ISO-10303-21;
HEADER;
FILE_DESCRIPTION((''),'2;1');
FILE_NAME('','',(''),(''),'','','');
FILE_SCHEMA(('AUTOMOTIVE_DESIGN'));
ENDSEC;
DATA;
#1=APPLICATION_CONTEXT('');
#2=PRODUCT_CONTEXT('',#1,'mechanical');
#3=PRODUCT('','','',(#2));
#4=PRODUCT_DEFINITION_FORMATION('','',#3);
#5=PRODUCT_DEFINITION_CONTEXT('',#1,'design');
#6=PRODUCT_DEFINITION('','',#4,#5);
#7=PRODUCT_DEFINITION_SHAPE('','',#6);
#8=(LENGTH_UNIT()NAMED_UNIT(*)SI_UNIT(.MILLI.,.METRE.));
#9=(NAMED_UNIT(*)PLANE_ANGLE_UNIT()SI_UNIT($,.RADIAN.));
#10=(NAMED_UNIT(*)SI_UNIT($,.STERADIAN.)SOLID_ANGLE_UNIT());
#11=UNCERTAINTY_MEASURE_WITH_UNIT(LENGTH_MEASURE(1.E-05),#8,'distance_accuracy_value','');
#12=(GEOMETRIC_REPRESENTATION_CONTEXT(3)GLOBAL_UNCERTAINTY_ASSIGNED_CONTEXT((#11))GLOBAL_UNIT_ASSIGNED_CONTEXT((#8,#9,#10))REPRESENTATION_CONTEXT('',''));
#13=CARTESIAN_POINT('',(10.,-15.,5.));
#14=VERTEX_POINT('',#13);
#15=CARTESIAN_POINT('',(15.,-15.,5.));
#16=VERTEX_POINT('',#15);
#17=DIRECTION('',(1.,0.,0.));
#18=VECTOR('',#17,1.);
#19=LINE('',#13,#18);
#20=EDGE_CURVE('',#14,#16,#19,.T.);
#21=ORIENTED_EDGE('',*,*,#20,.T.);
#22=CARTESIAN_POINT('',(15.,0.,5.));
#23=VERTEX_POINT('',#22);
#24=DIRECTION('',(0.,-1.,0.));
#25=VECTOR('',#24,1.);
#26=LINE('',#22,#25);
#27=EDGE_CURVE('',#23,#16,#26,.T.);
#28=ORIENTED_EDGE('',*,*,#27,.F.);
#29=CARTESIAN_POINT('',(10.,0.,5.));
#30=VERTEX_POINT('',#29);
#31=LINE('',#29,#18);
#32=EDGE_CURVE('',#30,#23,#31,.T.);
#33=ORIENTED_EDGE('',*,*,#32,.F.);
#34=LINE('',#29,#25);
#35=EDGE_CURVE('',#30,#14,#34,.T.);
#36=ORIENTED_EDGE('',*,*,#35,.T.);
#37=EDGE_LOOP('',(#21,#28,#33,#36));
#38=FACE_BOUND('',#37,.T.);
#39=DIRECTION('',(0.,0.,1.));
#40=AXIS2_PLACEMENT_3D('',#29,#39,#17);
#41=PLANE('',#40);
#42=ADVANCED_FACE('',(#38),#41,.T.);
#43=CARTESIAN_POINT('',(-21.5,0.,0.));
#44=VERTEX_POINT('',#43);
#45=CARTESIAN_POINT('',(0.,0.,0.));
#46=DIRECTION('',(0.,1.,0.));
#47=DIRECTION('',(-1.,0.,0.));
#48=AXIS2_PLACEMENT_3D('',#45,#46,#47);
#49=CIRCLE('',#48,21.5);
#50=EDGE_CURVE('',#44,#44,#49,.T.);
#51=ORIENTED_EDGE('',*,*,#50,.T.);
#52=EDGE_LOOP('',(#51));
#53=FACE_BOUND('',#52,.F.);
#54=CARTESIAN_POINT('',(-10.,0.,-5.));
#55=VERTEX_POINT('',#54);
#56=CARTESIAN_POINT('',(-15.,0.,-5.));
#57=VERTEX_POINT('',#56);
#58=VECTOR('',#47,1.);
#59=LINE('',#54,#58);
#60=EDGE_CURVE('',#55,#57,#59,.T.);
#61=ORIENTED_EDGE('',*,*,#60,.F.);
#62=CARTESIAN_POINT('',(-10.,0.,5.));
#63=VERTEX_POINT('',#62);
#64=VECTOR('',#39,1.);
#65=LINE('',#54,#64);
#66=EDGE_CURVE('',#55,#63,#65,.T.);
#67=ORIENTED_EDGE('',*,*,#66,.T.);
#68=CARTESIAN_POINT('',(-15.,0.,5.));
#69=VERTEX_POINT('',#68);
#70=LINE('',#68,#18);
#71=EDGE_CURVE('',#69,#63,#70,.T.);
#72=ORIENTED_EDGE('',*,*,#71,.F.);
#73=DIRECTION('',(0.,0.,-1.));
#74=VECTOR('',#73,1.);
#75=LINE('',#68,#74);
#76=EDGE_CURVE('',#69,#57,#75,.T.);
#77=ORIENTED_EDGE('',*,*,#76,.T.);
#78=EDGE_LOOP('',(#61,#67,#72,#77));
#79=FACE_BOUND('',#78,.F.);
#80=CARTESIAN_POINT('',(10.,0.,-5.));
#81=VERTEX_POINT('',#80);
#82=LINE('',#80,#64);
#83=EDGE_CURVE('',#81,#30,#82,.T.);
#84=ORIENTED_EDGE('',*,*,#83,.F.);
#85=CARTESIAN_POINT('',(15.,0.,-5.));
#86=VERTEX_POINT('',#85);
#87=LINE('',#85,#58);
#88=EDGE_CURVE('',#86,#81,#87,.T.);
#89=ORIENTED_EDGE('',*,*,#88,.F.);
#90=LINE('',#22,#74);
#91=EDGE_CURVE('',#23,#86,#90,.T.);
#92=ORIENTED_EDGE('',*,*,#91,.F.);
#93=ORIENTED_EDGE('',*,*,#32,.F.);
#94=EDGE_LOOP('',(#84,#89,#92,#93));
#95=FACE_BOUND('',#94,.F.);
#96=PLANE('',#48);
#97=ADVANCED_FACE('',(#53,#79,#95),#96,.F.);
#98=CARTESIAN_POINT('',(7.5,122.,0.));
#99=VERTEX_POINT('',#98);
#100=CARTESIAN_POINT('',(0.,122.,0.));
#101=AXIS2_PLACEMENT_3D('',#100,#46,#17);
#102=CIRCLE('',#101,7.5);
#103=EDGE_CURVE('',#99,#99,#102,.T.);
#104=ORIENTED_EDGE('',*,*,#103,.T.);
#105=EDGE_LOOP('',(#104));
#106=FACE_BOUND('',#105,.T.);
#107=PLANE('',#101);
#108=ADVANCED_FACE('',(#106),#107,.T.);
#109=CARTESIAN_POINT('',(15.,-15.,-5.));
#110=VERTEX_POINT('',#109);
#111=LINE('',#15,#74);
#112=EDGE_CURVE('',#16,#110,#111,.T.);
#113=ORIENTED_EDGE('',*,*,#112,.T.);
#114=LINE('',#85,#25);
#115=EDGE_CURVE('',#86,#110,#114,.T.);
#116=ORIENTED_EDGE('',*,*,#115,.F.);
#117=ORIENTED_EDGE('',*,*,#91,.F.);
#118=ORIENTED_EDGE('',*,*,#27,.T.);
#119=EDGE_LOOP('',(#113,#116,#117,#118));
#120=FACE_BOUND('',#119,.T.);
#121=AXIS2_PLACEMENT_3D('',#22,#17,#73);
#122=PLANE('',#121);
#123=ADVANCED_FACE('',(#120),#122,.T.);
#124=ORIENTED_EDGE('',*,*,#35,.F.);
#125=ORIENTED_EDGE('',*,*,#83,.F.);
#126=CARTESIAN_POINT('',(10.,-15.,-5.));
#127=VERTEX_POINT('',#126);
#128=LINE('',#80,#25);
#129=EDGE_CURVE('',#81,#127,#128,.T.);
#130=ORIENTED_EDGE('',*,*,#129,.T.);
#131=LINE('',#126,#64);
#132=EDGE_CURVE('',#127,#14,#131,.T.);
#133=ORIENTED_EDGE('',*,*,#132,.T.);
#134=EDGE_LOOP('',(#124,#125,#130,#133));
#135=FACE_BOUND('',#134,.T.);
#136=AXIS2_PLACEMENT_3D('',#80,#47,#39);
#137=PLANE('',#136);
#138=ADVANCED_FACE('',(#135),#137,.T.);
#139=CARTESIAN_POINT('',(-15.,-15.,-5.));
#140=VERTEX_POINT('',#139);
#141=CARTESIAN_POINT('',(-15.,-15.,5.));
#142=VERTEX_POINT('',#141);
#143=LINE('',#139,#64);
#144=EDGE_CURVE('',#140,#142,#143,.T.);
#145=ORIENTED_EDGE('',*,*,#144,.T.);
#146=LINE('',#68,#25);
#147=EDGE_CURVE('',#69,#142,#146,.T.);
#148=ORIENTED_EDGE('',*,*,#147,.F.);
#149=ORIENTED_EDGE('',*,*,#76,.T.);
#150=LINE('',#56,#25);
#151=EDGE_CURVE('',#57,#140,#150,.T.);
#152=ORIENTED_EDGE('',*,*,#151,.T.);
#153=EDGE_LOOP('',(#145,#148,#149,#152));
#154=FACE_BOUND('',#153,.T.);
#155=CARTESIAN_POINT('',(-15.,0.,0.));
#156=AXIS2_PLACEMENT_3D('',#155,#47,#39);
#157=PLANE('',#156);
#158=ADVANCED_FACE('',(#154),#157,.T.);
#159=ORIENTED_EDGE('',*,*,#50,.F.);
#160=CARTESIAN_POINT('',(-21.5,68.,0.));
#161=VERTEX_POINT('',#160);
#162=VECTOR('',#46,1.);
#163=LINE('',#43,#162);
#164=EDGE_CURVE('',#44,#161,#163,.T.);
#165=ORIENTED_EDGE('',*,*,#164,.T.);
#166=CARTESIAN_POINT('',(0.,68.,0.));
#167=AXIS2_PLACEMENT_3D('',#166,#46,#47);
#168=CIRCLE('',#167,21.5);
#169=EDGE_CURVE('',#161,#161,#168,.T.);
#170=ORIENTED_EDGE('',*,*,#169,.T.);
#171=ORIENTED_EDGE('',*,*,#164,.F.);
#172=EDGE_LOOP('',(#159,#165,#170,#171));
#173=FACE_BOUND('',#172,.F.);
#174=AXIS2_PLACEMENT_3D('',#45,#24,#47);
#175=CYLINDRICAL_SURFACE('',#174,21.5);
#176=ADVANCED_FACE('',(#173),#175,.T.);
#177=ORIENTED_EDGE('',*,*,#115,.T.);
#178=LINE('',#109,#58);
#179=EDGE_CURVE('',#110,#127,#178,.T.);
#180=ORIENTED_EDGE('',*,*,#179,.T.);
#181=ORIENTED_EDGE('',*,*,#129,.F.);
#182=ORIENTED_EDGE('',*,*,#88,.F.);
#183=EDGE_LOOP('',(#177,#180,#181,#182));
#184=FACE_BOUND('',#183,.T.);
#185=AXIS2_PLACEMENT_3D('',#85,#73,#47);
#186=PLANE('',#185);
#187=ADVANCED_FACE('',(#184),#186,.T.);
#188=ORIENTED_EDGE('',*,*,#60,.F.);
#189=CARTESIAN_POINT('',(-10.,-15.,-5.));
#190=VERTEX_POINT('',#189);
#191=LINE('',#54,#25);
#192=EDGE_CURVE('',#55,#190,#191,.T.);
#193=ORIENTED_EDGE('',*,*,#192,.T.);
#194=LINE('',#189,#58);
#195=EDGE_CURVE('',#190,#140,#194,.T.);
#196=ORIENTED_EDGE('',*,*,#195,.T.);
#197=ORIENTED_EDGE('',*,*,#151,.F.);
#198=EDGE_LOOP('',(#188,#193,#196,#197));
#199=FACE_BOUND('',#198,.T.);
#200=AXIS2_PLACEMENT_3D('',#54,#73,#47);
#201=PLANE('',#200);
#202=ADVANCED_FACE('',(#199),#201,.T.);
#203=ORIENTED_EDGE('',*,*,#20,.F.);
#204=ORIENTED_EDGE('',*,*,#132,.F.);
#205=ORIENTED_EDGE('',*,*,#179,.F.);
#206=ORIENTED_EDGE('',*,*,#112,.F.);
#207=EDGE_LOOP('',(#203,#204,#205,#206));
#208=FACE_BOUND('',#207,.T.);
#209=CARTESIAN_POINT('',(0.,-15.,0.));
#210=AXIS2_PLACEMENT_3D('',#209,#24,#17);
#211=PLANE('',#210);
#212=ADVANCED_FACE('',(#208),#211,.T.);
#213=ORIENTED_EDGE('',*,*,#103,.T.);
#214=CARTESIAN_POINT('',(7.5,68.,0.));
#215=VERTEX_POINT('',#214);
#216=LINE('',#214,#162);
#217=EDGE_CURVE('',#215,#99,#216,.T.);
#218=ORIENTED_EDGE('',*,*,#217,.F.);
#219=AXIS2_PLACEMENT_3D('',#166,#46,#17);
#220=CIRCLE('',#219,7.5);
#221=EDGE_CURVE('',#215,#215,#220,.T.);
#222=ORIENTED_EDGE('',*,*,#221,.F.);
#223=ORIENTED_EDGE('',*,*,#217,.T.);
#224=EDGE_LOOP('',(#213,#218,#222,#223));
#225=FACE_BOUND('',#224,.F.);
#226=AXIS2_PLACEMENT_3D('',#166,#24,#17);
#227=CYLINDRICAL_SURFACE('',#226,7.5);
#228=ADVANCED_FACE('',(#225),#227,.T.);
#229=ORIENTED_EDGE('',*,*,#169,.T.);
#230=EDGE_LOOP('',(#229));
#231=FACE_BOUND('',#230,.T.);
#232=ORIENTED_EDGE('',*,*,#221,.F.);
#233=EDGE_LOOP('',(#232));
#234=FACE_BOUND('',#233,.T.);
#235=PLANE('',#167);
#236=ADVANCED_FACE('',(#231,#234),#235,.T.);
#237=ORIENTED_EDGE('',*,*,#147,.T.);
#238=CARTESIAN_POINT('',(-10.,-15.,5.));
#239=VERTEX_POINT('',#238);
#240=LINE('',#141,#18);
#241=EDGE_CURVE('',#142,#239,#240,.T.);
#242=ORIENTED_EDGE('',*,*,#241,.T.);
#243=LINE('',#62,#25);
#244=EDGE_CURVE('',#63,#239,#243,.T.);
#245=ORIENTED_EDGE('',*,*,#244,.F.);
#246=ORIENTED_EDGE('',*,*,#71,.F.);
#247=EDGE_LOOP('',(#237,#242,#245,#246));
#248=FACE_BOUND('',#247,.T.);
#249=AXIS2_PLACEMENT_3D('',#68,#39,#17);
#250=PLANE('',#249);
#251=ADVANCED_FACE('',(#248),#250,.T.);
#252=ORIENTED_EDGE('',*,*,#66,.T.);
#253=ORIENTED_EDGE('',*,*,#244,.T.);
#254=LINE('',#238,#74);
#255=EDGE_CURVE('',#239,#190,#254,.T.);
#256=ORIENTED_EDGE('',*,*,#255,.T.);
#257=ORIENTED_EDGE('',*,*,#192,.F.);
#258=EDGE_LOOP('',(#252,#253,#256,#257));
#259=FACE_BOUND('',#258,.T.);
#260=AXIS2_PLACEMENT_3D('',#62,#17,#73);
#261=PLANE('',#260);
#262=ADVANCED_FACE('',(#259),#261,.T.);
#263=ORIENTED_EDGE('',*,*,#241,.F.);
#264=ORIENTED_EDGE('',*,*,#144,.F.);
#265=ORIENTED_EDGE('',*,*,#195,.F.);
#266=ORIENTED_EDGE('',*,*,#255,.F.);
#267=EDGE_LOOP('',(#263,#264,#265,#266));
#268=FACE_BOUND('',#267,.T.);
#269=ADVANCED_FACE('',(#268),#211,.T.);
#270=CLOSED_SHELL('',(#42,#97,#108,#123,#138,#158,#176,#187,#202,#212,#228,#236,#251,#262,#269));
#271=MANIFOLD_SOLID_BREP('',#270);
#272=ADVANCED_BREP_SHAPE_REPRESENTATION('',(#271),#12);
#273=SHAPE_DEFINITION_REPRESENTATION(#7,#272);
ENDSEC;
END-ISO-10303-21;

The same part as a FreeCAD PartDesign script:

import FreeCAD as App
import Part
import Sketcher
from FreeCAD import Vector
Q = App.Units.Quantity

doc = App.newDocument("Part")
body = doc.addObject("PartDesign::Body", "Body")

sketch1 = doc.addObject("Sketcher::SketchObject", "Sketch")
body.addObject(sketch1)
sketch1.AttachmentSupport = (doc.XZ_Plane, [""])
sketch1.MapMode = "FlatFace"
sketch1.addGeometry(Part.Circle(Vector(0, 0, 0), Vector(0, 0, 1), 22), False)
sketch1.addConstraint(Sketcher.Constraint("Coincident", 0, 3, -1, 1))
sketch1.addConstraint(Sketcher.Constraint("Diameter", 0, Q("43 mm")))
pad1 = doc.addObject("PartDesign::Pad", "Pad")
body.addObject(pad1)
pad1.Profile = sketch1
pad1.Length = 68
pad1.Reversed = True

sketch2 = doc.addObject("Sketcher::SketchObject", "Sketch001")
body.addObject(sketch2)
sketch2.AttachmentSupport = (doc.XZ_Plane, [""])
sketch2.MapMode = "FlatFace"
sketch2.AttachmentOffset = App.Placement(Vector(0, 0, -68), App.Rotation())
sketch2.addGeometry(Part.Circle(Vector(0, 0, 0), Vector(0, 0, 1), 8), False)
sketch2.addConstraint(Sketcher.Constraint("Coincident", 0, 3, -1, 1))
sketch2.addConstraint(Sketcher.Constraint("Diameter", 0, Q("15 mm")))
pad2 = doc.addObject("PartDesign::Pad", "Pad001")
body.addObject(pad2)
pad2.Profile = sketch2
pad2.Length = 54
pad2.Reversed = True

sketch3 = doc.addObject("Sketcher::SketchObject", "Sketch002")
body.addObject(sketch3)
sketch3.AttachmentSupport = (doc.XZ_Plane, [""])
sketch3.MapMode = "FlatFace"
sketch3.addGeometry(Part.LineSegment(Vector(-10, 5, 0), Vector(-15, 5, 0)), False)
sketch3.addGeometry(Part.LineSegment(Vector(-15, 5, 0), Vector(-15, -5, 0)), False)
sketch3.addGeometry(Part.LineSegment(Vector(-15, -5, 0), Vector(-10, -5, 0)), False)
sketch3.addGeometry(Part.LineSegment(Vector(-10, -5, 0), Vector(-10, 5, 0)), False)
sketch3.addGeometry(Part.LineSegment(Vector(15, 5, 0), Vector(10, 5, 0)), False)
sketch3.addGeometry(Part.LineSegment(Vector(10, 5, 0), Vector(10, -5, 0)), False)
sketch3.addGeometry(Part.LineSegment(Vector(10, -5, 0), Vector(15, -5, 0)), False)
sketch3.addGeometry(Part.LineSegment(Vector(15, -5, 0), Vector(15, 5, 0)), False)
sketch3.addConstraint(Sketcher.Constraint("Coincident", 0, 2, 1, 1))
sketch3.addConstraint(Sketcher.Constraint("Coincident", 1, 2, 2, 1))
sketch3.addConstraint(Sketcher.Constraint("Coincident", 2, 2, 3, 1))
sketch3.addConstraint(Sketcher.Constraint("Coincident", 3, 2, 0, 1))
sketch3.addConstraint(Sketcher.Constraint("Coincident", 4, 2, 5, 1))
sketch3.addConstraint(Sketcher.Constraint("Coincident", 5, 2, 6, 1))
sketch3.addConstraint(Sketcher.Constraint("Coincident", 6, 2, 7, 1))
sketch3.addConstraint(Sketcher.Constraint("Coincident", 7, 2, 4, 1))
sketch3.addConstraint(Sketcher.Constraint("Horizontal", 0))
sketch3.addConstraint(Sketcher.Constraint("Vertical", 1))
sketch3.addConstraint(Sketcher.Constraint("Horizontal", 2))
sketch3.addConstraint(Sketcher.Constraint("Vertical", 3))
sketch3.addConstraint(Sketcher.Constraint("Horizontal", 4))
sketch3.addConstraint(Sketcher.Constraint("Vertical", 5))
sketch3.addConstraint(Sketcher.Constraint("Horizontal", 6))
sketch3.addConstraint(Sketcher.Constraint("Vertical", 7))
sketch3.addConstraint(Sketcher.Constraint("Symmetric", 2, 2, 4, 2, -1, 1))
sketch3.addConstraint(Sketcher.Constraint("Symmetric", 0, 2, 6, 2, -1, 1))
sketch3.addConstraint(Sketcher.Constraint("Horizontal", 3, 2, 4, 2))
sketch3.addConstraint(Sketcher.Constraint("DistanceX", 0, 2, 0, 1, Q("5 mm")))
sketch3.addConstraint(Sketcher.Constraint("DistanceY", 1, 2, 1, 1, Q("10 mm")))
sketch3.addConstraint(Sketcher.Constraint("DistanceX", 2, 2, -1, 1, Q("10 mm")))
pad3 = doc.addObject("PartDesign::Pad", "Pad002")
body.addObject(pad3)
pad3.Profile = sketch3
pad3.Length = 15

doc.recompute()
